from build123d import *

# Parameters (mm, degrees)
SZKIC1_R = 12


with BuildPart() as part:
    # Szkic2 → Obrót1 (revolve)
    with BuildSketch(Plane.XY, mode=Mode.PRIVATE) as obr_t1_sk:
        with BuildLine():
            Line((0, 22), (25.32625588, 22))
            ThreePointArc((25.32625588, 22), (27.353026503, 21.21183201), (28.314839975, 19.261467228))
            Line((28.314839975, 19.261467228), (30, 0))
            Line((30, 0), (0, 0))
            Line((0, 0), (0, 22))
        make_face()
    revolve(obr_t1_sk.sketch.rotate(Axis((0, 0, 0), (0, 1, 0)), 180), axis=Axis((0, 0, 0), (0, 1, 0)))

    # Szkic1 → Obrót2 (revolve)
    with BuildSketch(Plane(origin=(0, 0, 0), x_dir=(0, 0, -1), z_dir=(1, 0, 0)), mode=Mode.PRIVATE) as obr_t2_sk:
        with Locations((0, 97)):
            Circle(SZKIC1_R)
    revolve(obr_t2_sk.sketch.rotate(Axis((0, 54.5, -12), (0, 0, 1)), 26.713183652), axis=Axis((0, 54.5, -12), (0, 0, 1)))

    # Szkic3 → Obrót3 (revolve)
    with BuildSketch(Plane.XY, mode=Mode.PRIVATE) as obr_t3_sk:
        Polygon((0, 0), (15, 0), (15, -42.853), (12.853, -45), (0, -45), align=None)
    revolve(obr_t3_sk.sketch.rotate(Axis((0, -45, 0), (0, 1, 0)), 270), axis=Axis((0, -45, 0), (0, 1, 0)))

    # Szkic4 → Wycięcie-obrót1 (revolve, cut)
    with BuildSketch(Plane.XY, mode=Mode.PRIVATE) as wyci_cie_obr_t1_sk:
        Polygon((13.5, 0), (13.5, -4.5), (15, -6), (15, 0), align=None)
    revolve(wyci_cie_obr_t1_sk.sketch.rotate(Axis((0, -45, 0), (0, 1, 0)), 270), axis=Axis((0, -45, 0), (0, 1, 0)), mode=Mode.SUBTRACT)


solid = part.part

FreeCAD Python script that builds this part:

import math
import FreeCAD as App
import Part
import Sketcher
Q = App.Units.Quantity


def add_polygon(sketch, points):
    """Adds a closed chain of lines whose ends are joined by coincident constraints."""
    first, n = sketch.GeometryCount, len(points)
    for a, b in zip(points, points[1:] + points[:1]):
        sketch.addGeometry(Part.LineSegment(App.Vector(*a, 0), App.Vector(*b, 0)), False)
    for i in range(n):
        sketch.addConstraint(Sketcher.Constraint("Coincident", first + i, 2, first + (i + 1) % n, 1))

doc = App.newDocument("Part")
body = doc.addObject("PartDesign::Body", "Body")

sketch1 = doc.addObject("Sketcher::SketchObject", "Sketch")
body.addObject(sketch1)
sketch1.AttachmentSupport = (doc.XY_Plane, [""])
sketch1.MapMode = "FlatFace"
sketch1.addGeometry(Part.LineSegment(App.Vector(25.3, 22, 0), App.Vector(0, 22, 0)), False)
sketch1.addGeometry(Part.LineSegment(App.Vector(0, 22, 0), App.Vector(0, 0, 0)), False)
sketch1.addGeometry(Part.LineSegment(App.Vector(0, 0, 0), App.Vector(30, 0, 0)), False)
sketch1.addGeometry(Part.LineSegment(App.Vector(30, 0, 0), App.Vector(28.3, 19.3, 0)), False)
sketch1.addGeometry(Part.ArcOfCircle(Part.Circle(App.Vector(25.3, 19, 0), App.Vector(0, 0, 1), 3), math.radians(5), math.radians(90)), False)
sketch1.addConstraint(Sketcher.Constraint("Coincident", 0, 2, 1, 1))
sketch1.addConstraint(Sketcher.Constraint("Coincident", 1, 2, 2, 1))
sketch1.addConstraint(Sketcher.Constraint("Coincident", 2, 2, 3, 1))
sketch1.addConstraint(Sketcher.Constraint("Tangent", 3, 2, 4, 1))
sketch1.addConstraint(Sketcher.Constraint("Tangent", 4, 2, 0, 1))
sketch1.addConstraint(Sketcher.Constraint("Horizontal", 0))
sketch1.addConstraint(Sketcher.Constraint("Vertical", 1))
sketch1.addConstraint(Sketcher.Constraint("Horizontal", 2))
sketch1.addConstraint(Sketcher.Constraint("Coincident", 1, 2, -1, 1))
sketch1.addConstraint(Sketcher.Constraint("Radius", 4, Q("3 mm")))
sketch1.addConstraint(Sketcher.Constraint("DistanceX", 2, 1, 2, 2, Q("30 mm")))
sketch1.addConstraint(Sketcher.Constraint("DistanceY", 1, 2, 1, 1, Q("22 mm")))
sketch1.addConstraint(Sketcher.Constraint("Angle", 3, Q("95 deg")))
revolution = doc.addObject("PartDesign::Revolution", "Revolution")
body.addObject(revolution)
revolution.Profile = sketch1
revolution.ReferenceAxis = (sketch1, ["V_Axis"])
revolution.Angle = 360

sketch2 = doc.addObject("Sketcher::SketchObject", "Sketch001")
body.addObject(sketch2)
sketch2.AttachmentSupport = (doc.YZ_Plane, [""])
sketch2.MapMode = "FlatFace"
sketch2.addGeometry(Part.Circle(App.Vector(97, 0, 0), App.Vector(0, 0, 1), 12), False)
sketch2.addGeometry(Part.LineSegment(App.Vector(54, 0, 0), App.Vector(54, 10, 0)), True)
sketch2.addConstraint(Sketcher.Constraint("Vertical", 1))
sketch2.addConstraint(Sketcher.Constraint("PointOnObject", 0, 3, -1))
sketch2.addConstraint(Sketcher.Constraint("PointOnObject", 1, 1, -1))
sketch2.addConstraint(Sketcher.Constraint("Diameter", 0, Q("24 mm")))
sketch2.addConstraint(Sketcher.Constraint("DistanceY", 1, 1, 1, 2, Q("10 mm")))
sketch2.addConstraint(Sketcher.Constraint("DistanceX", -1, 1, 0, 3, Q("97 mm")))
sketch2.addConstraint(Sketcher.Constraint("DistanceX", -1, 1, 1, 1, Q("54.5 mm")))
revolution2 = doc.addObject("PartDesign::Revolution", "Revolution001")
body.addObject(revolution2)
revolution2.Profile = sketch2
revolution2.ReferenceAxis = (sketch2, ["Axis0"])
revolution2.Angle = 360

sketch3 = doc.addObject("Sketcher::SketchObject", "Sketch002")
body.addObject(sketch3)
sketch3.AttachmentSupport = (doc.XY_Plane, [""])
sketch3.MapMode = "FlatFace"
add_polygon(sketch3, [(15, 0), (0, 0), (0, -45), (12.9, -45), (15, -42.9)])
sketch3.addConstraint(Sketcher.Constraint("Horizontal", 0))
sketch3.addConstraint(Sketcher.Constraint("Vertical", 1))
sketch3.addConstraint(Sketcher.Constraint("Horizontal", 2))
sketch3.addConstraint(Sketcher.Constraint("Vertical", 4))
sketch3.addConstraint(Sketcher.Constraint("Coincident", 0, 2, -1, 1))
sketch3.addConstraint(Sketcher.Constraint("DistanceX", 0, 2, 0, 1, Q("15 mm")))
sketch3.addConstraint(Sketcher.Constraint("DistanceY", 1, 2, 1, 1, Q("45 mm")))
sketch3.addConstraint(Sketcher.Constraint("Angle", 3, Q("45 deg")))
sketch3.addConstraint(Sketcher.Constraint("DistanceX", 2, 1, 2, 2, Q("12.853 mm")))
revolution3 = doc.addObject("PartDesign::Revolution", "Revolution002")
body.addObject(revolution3)
revolution3.Profile = sketch3
revolution3.ReferenceAxis = (sketch3, ["V_Axis"])
revolution3.Angle = 360

sketch4 = doc.addObject("Sketcher::SketchObject", "Sketch003")
body.addObject(sketch4)
sketch4.AttachmentSupport = (doc.XY_Plane, [""])
sketch4.MapMode = "FlatFace"
add_polygon(sketch4, [(13.5, 0), (13.5, -4.5), (15, -6), (15, 0)])
sketch4.addConstraint(Sketcher.Constraint("Vertical", 0))
sketch4.addConstraint(Sketcher.Constraint("Vertical", 2))
sketch4.addConstraint(Sketcher.Constraint("Horizontal", 3))
sketch4.addConstraint(Sketcher.Constraint("PointOnObject", 2, 2, -1))
sketch4.addConstraint(Sketcher.Constraint("DistanceY", 2, 1, 2, 2, Q("6 mm")))
sketch4.addConstraint(Sketcher.Constraint("Angle", 1, Q("-45 deg")))
sketch4.addConstraint(Sketcher.Constraint("DistanceX", 3, 2, 3, 1, Q("1.5 mm")))
sketch4.addConstraint(Sketcher.Constraint("DistanceX", -1, 1, 1, 2, Q("15 mm")))
groove = doc.addObject("PartDesign::Groove", "Groove")
body.addObject(groove)
groove.Profile = sketch4
groove.ReferenceAxis = (sketch4, ["V_Axis"])
groove.Angle = 360

doc.recompute()
